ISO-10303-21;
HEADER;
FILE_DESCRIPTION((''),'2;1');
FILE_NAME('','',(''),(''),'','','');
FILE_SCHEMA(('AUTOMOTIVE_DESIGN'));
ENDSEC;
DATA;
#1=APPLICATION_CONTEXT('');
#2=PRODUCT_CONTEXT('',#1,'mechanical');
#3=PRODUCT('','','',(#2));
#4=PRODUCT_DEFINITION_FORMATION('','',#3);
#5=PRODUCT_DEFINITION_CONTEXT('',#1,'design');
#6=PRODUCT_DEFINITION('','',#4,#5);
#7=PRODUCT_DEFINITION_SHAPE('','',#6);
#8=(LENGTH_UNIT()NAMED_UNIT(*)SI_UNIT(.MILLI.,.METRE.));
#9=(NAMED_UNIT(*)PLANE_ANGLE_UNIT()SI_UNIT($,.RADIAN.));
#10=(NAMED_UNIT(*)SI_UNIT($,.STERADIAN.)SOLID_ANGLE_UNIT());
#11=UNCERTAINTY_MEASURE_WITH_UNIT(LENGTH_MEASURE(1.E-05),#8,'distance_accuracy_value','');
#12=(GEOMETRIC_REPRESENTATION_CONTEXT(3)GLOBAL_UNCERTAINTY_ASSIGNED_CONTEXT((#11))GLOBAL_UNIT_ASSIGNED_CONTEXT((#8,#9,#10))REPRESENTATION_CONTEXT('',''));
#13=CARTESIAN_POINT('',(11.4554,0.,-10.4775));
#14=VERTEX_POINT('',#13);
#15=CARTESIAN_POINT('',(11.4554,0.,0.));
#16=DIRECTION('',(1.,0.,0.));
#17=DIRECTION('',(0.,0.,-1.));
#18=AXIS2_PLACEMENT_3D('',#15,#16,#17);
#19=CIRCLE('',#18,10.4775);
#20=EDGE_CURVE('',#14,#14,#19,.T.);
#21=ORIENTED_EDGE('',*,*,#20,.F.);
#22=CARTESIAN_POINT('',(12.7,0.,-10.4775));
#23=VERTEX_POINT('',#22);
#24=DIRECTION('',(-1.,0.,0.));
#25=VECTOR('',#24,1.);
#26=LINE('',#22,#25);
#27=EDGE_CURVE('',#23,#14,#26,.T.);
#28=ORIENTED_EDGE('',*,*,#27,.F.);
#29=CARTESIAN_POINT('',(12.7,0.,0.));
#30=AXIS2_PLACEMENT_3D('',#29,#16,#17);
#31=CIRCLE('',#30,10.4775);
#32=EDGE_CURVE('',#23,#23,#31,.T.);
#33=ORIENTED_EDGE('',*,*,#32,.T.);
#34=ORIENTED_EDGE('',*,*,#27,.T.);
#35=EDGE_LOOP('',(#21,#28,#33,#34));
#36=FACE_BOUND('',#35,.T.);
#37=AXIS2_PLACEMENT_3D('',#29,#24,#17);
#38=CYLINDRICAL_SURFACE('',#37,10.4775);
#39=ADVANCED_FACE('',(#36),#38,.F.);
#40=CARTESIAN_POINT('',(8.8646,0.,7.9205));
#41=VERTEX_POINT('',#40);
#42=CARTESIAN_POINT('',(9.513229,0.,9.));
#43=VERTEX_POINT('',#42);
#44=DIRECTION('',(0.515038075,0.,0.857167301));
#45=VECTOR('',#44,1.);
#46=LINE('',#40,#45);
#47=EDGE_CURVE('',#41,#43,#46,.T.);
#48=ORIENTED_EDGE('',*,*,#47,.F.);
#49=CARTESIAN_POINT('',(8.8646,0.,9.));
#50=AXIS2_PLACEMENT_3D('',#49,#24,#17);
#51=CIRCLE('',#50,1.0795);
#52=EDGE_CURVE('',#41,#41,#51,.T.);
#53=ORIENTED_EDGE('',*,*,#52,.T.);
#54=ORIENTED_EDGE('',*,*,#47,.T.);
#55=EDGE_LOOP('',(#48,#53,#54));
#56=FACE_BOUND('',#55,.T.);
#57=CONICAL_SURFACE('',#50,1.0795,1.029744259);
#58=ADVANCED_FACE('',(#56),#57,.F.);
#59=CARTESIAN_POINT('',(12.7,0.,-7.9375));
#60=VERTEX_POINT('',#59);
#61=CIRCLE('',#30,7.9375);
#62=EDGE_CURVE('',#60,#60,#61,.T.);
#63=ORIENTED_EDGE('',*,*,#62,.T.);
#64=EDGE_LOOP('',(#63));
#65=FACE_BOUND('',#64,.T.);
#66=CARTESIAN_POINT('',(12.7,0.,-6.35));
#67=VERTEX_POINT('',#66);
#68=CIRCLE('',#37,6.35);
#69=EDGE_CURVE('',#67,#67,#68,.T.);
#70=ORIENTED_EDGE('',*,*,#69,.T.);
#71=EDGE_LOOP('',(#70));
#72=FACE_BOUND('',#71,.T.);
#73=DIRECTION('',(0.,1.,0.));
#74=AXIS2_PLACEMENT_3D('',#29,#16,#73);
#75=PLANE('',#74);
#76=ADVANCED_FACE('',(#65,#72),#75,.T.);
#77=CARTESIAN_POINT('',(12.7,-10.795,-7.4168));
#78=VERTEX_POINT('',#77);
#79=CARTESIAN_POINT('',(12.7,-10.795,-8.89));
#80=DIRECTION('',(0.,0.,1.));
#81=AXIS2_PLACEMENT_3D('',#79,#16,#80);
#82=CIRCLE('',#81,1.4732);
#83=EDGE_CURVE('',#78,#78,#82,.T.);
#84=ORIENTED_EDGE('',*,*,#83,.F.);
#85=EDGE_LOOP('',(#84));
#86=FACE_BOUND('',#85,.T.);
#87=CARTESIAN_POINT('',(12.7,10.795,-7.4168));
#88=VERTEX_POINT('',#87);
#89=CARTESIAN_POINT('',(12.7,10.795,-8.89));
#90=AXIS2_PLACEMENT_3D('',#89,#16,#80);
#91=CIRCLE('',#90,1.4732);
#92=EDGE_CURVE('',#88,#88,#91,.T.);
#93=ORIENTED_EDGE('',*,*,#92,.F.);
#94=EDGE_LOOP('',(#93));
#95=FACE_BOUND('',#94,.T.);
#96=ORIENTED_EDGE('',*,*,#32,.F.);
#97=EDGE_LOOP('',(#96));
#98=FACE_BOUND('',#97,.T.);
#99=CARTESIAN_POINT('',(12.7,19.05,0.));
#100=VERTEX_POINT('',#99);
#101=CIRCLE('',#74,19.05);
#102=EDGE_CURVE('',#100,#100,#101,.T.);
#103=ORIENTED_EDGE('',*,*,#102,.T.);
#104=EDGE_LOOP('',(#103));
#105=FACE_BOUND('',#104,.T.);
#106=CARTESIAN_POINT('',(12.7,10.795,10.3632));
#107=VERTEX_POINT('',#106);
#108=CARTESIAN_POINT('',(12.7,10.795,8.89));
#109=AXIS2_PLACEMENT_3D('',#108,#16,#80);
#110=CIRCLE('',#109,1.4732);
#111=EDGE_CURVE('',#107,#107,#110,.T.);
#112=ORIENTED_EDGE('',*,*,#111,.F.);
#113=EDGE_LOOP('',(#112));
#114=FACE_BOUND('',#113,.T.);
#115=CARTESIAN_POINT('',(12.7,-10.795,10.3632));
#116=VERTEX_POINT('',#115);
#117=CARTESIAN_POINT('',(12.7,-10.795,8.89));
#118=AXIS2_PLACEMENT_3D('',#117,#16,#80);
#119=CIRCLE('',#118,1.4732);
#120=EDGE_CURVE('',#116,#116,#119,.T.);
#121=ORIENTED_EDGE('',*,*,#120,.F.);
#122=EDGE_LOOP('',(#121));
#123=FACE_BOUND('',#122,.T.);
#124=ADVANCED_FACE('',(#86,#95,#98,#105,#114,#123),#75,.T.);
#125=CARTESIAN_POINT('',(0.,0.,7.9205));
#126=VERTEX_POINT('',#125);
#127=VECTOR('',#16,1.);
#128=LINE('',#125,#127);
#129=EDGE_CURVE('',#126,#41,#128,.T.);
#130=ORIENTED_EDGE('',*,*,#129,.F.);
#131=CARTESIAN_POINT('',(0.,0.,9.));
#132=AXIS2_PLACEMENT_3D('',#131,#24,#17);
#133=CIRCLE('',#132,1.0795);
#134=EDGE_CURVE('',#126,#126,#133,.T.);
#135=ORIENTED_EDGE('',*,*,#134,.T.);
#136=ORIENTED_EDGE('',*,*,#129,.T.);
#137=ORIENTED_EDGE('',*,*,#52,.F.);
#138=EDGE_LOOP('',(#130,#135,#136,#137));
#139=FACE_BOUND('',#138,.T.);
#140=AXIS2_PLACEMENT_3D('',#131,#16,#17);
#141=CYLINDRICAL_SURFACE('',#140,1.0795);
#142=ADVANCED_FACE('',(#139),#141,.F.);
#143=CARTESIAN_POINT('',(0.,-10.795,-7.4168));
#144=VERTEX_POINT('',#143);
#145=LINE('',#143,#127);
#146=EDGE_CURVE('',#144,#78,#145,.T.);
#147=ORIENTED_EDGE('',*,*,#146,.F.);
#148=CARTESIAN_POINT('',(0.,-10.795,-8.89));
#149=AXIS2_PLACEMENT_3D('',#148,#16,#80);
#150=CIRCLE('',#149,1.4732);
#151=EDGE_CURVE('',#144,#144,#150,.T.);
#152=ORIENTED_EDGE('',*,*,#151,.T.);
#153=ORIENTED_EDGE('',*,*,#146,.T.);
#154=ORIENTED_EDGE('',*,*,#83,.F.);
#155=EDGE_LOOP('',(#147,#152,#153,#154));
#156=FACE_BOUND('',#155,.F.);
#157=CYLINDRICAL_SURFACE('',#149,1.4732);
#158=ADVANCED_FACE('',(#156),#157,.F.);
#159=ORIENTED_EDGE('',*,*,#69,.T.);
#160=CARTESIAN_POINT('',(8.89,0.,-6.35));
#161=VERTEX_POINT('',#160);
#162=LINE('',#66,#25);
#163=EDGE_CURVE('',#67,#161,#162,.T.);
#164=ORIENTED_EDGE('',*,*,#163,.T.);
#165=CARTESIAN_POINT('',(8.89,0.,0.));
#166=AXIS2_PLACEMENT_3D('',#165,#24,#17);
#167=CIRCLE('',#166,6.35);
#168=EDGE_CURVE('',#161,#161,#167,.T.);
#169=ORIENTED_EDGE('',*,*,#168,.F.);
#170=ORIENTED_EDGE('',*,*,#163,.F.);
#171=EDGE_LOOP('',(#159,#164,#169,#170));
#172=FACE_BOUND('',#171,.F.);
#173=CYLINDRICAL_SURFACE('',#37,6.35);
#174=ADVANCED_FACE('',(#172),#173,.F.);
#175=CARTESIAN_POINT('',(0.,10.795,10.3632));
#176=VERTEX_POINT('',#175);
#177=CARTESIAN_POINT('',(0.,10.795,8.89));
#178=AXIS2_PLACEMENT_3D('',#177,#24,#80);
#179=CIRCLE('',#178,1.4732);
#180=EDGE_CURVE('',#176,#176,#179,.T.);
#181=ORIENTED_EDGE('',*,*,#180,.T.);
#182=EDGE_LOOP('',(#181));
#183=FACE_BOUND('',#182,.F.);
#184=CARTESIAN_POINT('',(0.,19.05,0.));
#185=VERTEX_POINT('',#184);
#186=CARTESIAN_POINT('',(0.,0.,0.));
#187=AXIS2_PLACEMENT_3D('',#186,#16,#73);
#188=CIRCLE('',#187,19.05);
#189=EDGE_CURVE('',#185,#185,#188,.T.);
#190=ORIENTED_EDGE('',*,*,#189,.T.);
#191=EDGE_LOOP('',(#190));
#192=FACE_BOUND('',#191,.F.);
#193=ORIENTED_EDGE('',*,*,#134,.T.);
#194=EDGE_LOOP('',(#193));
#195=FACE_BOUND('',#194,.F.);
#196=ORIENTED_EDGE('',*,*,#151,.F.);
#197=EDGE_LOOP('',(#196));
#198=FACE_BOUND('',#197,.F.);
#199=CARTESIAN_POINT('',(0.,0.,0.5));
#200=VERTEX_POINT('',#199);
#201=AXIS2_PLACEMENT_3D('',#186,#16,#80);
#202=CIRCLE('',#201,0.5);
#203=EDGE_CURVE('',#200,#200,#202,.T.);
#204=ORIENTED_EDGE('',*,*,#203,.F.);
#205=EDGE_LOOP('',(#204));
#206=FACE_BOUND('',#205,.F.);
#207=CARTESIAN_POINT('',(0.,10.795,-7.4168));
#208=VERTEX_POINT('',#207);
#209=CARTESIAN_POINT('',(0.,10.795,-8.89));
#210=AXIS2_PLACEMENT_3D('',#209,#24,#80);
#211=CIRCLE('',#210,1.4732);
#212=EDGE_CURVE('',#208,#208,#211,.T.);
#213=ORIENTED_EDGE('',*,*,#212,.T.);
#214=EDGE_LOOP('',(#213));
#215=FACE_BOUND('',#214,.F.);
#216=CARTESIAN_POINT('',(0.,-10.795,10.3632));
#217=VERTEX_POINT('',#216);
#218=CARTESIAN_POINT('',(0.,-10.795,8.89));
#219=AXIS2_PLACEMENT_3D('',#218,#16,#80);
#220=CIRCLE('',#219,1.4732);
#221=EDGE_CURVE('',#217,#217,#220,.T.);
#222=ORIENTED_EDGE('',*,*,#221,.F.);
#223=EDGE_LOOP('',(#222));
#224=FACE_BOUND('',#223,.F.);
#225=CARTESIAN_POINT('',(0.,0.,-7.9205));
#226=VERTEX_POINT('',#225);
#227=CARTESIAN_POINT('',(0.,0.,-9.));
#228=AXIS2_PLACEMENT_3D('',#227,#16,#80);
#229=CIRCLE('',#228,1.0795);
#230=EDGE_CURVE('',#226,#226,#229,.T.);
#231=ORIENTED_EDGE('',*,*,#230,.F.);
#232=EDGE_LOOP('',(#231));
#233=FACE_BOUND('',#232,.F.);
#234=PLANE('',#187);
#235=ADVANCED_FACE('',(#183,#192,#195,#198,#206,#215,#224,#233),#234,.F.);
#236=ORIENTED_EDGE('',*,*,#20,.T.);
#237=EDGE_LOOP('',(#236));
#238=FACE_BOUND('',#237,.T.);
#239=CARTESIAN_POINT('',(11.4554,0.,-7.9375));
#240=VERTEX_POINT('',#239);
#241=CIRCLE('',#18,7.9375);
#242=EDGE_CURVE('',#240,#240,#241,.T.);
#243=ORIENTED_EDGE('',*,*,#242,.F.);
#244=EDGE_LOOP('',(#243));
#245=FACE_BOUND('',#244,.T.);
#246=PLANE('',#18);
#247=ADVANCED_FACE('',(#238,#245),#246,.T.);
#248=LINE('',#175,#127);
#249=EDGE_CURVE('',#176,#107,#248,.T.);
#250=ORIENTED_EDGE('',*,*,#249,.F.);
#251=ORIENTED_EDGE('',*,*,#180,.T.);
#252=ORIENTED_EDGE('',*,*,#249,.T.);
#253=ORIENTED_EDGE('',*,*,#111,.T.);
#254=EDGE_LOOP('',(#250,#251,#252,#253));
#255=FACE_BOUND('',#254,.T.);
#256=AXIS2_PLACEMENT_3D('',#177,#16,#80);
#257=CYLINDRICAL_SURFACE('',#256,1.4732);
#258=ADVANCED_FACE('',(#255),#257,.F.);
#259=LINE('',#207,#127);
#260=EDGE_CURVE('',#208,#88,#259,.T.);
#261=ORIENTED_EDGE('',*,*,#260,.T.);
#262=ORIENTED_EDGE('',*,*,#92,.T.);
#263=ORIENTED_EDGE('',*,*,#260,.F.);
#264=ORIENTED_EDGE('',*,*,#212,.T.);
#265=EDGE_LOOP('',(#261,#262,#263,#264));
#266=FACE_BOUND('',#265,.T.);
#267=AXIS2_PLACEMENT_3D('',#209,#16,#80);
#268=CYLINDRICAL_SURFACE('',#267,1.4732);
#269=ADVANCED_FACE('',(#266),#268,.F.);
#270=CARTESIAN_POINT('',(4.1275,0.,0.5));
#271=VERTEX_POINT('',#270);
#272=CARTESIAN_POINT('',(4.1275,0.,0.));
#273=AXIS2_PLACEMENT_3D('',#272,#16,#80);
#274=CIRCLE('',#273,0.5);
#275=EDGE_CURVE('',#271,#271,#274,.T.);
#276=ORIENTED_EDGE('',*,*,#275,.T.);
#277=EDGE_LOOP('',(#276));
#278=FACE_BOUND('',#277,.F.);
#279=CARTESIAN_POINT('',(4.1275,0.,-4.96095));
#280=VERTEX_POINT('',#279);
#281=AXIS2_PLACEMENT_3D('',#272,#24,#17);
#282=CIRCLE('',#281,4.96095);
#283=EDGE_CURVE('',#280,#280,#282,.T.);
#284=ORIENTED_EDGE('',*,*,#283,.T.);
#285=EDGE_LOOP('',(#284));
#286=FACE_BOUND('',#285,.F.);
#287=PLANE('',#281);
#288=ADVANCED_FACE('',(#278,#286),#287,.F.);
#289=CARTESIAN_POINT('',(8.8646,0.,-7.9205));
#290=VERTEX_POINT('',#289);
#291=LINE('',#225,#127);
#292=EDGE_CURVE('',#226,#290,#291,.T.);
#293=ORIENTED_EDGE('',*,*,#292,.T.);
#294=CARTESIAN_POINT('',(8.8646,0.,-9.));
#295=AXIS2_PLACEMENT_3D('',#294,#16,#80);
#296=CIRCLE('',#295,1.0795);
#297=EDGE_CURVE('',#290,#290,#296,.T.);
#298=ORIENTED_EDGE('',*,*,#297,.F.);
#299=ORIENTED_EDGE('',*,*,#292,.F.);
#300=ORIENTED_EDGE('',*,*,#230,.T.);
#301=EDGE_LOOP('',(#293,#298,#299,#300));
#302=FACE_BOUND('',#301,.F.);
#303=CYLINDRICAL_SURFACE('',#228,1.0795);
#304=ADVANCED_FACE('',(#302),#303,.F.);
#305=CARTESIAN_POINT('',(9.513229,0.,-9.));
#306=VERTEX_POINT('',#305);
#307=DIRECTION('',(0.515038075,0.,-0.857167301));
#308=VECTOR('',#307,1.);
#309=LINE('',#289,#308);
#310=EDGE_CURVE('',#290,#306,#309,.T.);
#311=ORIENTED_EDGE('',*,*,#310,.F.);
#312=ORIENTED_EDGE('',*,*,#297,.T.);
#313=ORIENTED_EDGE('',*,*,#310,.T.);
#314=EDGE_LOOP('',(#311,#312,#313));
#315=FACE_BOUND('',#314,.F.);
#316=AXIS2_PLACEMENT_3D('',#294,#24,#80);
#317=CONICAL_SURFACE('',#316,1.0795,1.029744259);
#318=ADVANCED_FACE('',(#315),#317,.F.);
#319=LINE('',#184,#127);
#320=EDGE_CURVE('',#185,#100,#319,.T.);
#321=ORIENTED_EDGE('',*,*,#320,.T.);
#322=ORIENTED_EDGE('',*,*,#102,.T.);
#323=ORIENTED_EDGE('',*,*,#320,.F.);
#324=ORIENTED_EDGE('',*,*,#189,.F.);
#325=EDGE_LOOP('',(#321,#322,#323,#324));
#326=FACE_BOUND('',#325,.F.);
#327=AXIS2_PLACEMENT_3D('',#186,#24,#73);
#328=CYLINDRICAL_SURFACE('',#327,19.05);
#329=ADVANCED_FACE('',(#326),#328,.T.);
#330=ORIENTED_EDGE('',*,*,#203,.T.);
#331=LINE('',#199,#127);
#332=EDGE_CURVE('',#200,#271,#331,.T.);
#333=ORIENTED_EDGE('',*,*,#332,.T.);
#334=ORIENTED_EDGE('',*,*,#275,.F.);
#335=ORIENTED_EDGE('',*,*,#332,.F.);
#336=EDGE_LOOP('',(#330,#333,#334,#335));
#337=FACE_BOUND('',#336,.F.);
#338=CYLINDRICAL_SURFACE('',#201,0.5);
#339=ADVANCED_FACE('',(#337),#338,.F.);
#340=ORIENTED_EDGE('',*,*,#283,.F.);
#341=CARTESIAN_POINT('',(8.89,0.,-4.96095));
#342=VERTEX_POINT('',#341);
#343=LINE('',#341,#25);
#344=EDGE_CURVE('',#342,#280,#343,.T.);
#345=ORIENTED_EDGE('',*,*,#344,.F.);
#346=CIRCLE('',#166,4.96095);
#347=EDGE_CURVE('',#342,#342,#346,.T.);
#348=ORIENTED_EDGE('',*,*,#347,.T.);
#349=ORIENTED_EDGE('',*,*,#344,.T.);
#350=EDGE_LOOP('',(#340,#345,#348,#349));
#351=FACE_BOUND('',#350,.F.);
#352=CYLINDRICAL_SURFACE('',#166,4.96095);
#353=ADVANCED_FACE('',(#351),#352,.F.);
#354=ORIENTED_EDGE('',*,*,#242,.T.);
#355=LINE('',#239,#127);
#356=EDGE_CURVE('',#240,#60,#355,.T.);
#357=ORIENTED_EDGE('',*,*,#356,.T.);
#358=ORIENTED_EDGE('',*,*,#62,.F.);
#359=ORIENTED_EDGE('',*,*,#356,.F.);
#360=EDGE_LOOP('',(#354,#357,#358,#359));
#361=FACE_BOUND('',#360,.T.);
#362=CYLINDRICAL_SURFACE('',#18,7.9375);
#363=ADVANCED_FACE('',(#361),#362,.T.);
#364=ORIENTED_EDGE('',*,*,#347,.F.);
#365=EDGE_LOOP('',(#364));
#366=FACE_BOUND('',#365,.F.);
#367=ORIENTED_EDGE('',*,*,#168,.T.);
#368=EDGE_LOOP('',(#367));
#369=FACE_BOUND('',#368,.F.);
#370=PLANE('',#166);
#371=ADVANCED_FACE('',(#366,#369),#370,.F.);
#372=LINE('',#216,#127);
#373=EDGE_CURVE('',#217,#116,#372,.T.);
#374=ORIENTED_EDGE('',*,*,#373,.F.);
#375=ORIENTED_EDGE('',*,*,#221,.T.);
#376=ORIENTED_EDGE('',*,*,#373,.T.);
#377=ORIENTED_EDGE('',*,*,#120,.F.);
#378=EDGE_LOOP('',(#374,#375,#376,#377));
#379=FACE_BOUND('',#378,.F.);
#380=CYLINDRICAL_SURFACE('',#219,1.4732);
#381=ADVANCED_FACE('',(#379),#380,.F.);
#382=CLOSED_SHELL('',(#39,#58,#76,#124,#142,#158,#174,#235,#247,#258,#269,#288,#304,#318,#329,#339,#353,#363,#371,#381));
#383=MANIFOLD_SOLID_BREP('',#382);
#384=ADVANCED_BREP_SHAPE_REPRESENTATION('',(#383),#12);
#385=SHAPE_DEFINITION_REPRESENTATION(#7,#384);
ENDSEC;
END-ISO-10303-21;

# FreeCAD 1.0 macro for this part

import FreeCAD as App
import Part
import Sketcher
from FreeCAD import Vector
Q = App.Units.Quantity


def add_polygon(sketch, points):
    """Adds a closed chain of lines whose ends are joined by coincident constraints."""
    first, n = sketch.GeometryCount, len(points)
    for a, b in zip(points, points[1:] + points[:1]):
        sketch.addGeometry(Part.LineSegment(App.Vector(*a, 0), App.Vector(*b, 0)), False)
    for i in range(n):
        sketch.addConstraint(Sketcher.Constraint("Coincident", first + i, 2, first + (i + 1) % n, 1))

doc = App.newDocument("Part")
params = doc.addObject("Spreadsheet::Sheet", "Params")
for row, (alias, value) in enumerate([
    ("sketch1_diameter", "1.5 in"),
    ("pad1_length", "0.5 in"),
    ("sketch2_diameter", "0.5 in"),
    ("hole_diameter", "0.5 in"),
    ("hole_depth", "0.15 in"),
    ("sketch3_diameter", "0.3906299 in"),
    ("hole2_diameter", "0.390626 in"),
    ("hole2_depth", "0.1875 in"),
    ("sketch4_diameter", "0.085 in"),
    ("hole3_diameter", "0.085 in"),
    ("hole3_depth", "0.349 in"),
    ("hole4_diameter", "1 mm"),
    ("sketch6_diameter", "0.116 in"),
    ("hole5_diameter", "0.116 in"),
    ("sketch7_height", "0.1 in"),
    ("sketch7_width", "0.049 in"),
    ("groove_angle", "360 deg"),
], start=1):
    params.set(f"A{row}", alias)
    params.set(f"B{row}", "=" + value)
    params.setAlias(f"B{row}", alias)

body = doc.addObject("PartDesign::Body", "Body")

sketch1 = body.newObject("Sketcher::SketchObject", "Sketch")
sketch1.AttachmentSupport = (doc.getObject("YZ_Plane"), [""])
sketch1.MapMode = "FlatFace"
sketch1.addGeometry(Part.Circle(Vector(0, 0, 0), Vector(0, 0, 1), 19.05), False)
sketch1.addConstraint([
    Sketcher.Constraint("Coincident", 0, 3, -1, 1),
    Sketcher.Constraint("Diameter", 0, Q("1.5 in")),
])
sketch1.setExpression("Constraints[1]", "Params.sketch1_diameter")
pad1 = body.newObject("PartDesign::Pad", "Pad")
pad1.Profile = sketch1
pad1.setExpression("Length", "Params.pad1_length")

sketch2 = body.newObject("Sketcher::SketchObject", "Sketch001")
sketch2.AttachmentSupport = (doc.getObject("YZ_Plane"), [""])
sketch2.MapMode = "FlatFace"
sketch2.AttachmentOffset = App.Placement(Vector(0, 0, 0.5 * 25.4), App.Rotation())
sketch2.addGeometry(Part.Circle(Vector(0, 0, 0), Vector(0, 0, 1), 6.35), False)
sketch2.addConstraint([
    Sketcher.Constraint("Coincident", 0, 3, -1, 1),
    Sketcher.Constraint("Diameter", 0, Q("0.5 in")),
])
sketch2.setExpression("Constraints[1]", "Params.sketch2_diameter")
doc.recompute()
hole = body.newObject("PartDesign::Hole", "Hole")
hole.Profile = sketch2
hole.ThreadType = "None"
hole.setExpression("Diameter", "Params.hole_diameter")
hole.DepthType = "Dimension"
hole.setExpression("Depth", "Params.hole_depth")
hole.DrillPoint = "Flat"

sketch3 = body.newObject("Sketcher::SketchObject", "Sketch002")
sketch3.AttachmentSupport = (doc.getObject("YZ_Plane"), [""])
sketch3.MapMode = "FlatFace"
sketch3.AttachmentOffset = App.Placement(Vector(0, 0, 0.35 * 25.4), App.Rotation())
sketch3.addGeometry(Part.Circle(Vector(0, 0, 0), Vector(0, 0, 1), 4.96095), False)
sketch3.addConstraint([
    Sketcher.Constraint("Coincident", 0, 3, -1, 1),
    Sketcher.Constraint("Diameter", 0, Q("0.3906299 in")),
])
sketch3.setExpression("Constraints[1]", "Params.sketch3_diameter")
doc.recompute()
hole2 = body.newObject("PartDesign::Hole", "Hole001")
hole2.Profile = sketch3
hole2.ThreadType = "None"
hole2.setExpression("Diameter", "Params.hole2_diameter")
hole2.DepthType = "Dimension"
hole2.setExpression("Depth", "Params.hole2_depth")
hole2.DrillPoint = "Flat"

sketch4 = body.newObject("Sketcher::SketchObject", "Sketch003")
sketch4.AttachmentSupport = (doc.getObject("YZ_Plane"), [""])
sketch4.MapMode = "FlatFace"
sketch4.addGeometry(Part.Circle(Vector(0, -9, 0), Vector(0, 0, 1), 1.0795), False)
sketch4.addConstraint([
    Sketcher.Constraint("PointOnObject", 0, 3, -2),
    Sketcher.Constraint("Diameter", 0, Q("0.085 in")),
    Sketcher.Constraint("DistanceY", 0, 3, -1, 1, Q("9 mm")),
])
sketch4.setExpression("Constraints[1]", "Params.sketch4_diameter")
doc.recompute()
hole3 = body.newObject("PartDesign::Hole", "Hole002")
hole3.Profile = sketch4
hole3.ThreadType = "None"
hole3.setExpression("Diameter", "Params.hole3_diameter")
hole3.DepthType = "Dimension"
hole3.setExpression("Depth", "Params.hole3_depth")
hole3.DrillPoint = "Angled"
hole3.DrillPointAngle = 118
hole3.Reversed = True

sketch5 = body.newObject("Sketcher::SketchObject", "Sketch004")
sketch5.AttachmentSupport = (doc.getObject("YZ_Plane"), [""])
sketch5.MapMode = "FlatFace"
sketch5.addGeometry(Part.Circle(Vector(0, 0, 0), Vector(0, 0, 1), 0.5), False)
sketch5.addConstraint([
    Sketcher.Constraint("Coincident", 0, 3, -1, 1),
    Sketcher.Constraint("Diameter", 0, Q("1 mm")),
])
doc.recompute()
hole4 = body.newObject("PartDesign::Hole", "Hole003")
hole4.Profile = sketch5
hole4.ThreadType = "None"
hole4.setExpression("Diameter", "Params.hole4_diameter")
hole4.DepthType = "ThroughAll"
hole4.Reversed = True
doc.recompute()

mirrored = body.newObject("PartDesign::Mirrored", "Mirrored")
mirrored.Originals = [hole3]
mirrored.MirrorPlane = (doc.getObject("XY_Plane"), [""])
body.Tip = mirrored

sketch6 = body.newObject("Sketcher::SketchObject", "Sketch005")
sketch6.AttachmentSupport = (doc.getObject("YZ_Plane"), [""])
sketch6.MapMode = "FlatFace"
sketch6.addGeometry([
    Part.Circle(Vector(-10.795, 8.89, 0), Vector(0, 0, 1), 1.4732),
    Part.Circle(Vector(-10.795, -8.89, 0), Vector(0, 0, 1), 1.4732),
], False)
sketch6.addConstraint([
    Sketcher.Constraint("Equal", 0, 1),
    Sketcher.Constraint("Symmetric", 0, 3, 1, 3, -1),
    Sketcher.Constraint("Diameter", 0, Q("0.116 in")),
    Sketcher.Constraint("DistanceY", 1, 3, 0, 3, Q("0.7 in")),
    Sketcher.Constraint("DistanceX", 0, 3, -1, 1, Q("0.425 in")),
])
sketch6.setExpression("Constraints[2]", "Params.sketch6_diameter")
doc.recompute()
hole5 = body.newObject("PartDesign::Hole", "Hole004")
hole5.Profile = sketch6
hole5.ThreadType = "None"
hole5.setExpression("Diameter", "Params.hole5_diameter")
hole5.DepthType = "ThroughAll"
hole5.Reversed = True
doc.recompute()

mirrored2 = body.newObject("PartDesign::Mirrored", "Mirrored001")
mirrored2.Originals = [hole5]
mirrored2.MirrorPlane = (doc.getObject("XZ_Plane"), [""])
body.Tip = mirrored2

sketch7 = body.newObject("Sketcher::SketchObject", "Sketch006")
sketch7.AttachmentSupport = (doc.getObject("XZ_Plane"), [""])
sketch7.MapMode = "FlatFace"
add_polygon(sketch7, [(11.4554, -10.4775), (11.4554, -7.9375), (12.7, -7.9375), (12.7, -10.4775)])
sketch7.addConstraint([
    Sketcher.Constraint("Vertical", 0),
    Sketcher.Constraint("Horizontal", 1),
    Sketcher.Constraint("Vertical", 2),
    Sketcher.Constraint("Horizontal", 3),
    Sketcher.Constraint("DistanceY", 0, 1, 0, 2, Q("0.1 in")),
    Sketcher.Constraint("DistanceX", 1, 1, 1, 2, Q("0.049 in")),
    Sketcher.Constraint("DistanceY", 0, 2, -1, 1, Q("0.3125 in")),
    Sketcher.Constraint("DistanceX", -1, 1, 1, 2, Q("0.5 in")),
])
sketch7.setExpression("Constraints[8]", "Params.sketch7_height")
sketch7.setExpression("Constraints[9]", "Params.sketch7_width")
groove = body.newObject("PartDesign::Groove", "Groove")
groove.Profile = sketch7
groove.ReferenceAxis = (sketch7, ["H_Axis"])
groove.setExpression("Angle", "Params.groove_angle")

doc.recompute()
